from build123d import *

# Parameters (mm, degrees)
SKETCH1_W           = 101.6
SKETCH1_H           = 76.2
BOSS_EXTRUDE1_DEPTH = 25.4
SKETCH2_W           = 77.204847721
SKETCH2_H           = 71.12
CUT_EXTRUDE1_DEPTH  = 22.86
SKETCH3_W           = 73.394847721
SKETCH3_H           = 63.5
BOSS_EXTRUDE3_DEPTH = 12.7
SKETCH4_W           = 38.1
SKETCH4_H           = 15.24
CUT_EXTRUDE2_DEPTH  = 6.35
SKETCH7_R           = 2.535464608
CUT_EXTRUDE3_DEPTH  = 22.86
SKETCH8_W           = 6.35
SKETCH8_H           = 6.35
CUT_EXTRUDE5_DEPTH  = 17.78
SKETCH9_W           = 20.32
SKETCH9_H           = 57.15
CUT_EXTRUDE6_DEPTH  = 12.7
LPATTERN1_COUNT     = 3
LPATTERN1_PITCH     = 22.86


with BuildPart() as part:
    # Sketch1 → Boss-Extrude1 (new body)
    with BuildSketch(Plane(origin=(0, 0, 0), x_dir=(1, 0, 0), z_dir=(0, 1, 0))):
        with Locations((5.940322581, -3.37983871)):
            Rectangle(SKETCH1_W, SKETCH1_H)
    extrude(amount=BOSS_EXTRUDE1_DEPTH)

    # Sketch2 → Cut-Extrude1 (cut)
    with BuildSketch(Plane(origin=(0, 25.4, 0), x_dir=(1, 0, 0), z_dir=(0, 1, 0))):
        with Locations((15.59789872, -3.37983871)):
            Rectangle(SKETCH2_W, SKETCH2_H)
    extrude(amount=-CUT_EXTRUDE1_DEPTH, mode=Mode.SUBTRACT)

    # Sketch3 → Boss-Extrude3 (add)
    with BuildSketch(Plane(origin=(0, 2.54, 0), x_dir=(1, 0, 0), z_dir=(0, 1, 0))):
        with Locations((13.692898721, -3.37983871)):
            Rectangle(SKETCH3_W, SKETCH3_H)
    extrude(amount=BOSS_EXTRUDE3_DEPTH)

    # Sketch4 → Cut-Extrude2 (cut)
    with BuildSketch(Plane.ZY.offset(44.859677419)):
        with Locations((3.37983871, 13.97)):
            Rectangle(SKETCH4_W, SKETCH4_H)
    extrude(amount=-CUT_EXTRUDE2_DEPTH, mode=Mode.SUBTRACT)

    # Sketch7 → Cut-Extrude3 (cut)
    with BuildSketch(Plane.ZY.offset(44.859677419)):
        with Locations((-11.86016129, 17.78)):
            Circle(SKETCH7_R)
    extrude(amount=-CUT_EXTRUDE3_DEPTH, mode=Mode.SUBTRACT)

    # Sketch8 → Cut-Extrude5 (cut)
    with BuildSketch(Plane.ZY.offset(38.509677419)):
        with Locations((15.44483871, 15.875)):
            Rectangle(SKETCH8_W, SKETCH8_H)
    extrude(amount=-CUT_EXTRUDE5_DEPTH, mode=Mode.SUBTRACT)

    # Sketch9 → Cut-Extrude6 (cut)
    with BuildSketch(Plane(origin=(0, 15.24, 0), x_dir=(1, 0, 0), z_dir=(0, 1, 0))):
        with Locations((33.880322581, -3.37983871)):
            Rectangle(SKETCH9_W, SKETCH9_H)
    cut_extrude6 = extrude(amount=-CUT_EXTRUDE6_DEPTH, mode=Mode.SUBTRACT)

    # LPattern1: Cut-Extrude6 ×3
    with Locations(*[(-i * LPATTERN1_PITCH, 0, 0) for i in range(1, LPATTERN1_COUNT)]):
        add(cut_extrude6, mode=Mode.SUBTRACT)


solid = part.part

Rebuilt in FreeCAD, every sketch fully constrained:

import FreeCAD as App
import Part
import Sketcher
Q = App.Units.Quantity

doc = App.newDocument("Part")
body = doc.addObject("PartDesign::Body", "Body")

sketch1 = body.newObject("Sketcher::SketchObject", "Sketch")
sketch1.AttachmentSupport = (doc.getObject("XZ_Plane"), [""])
sketch1.MapMode = "FlatFace"
sketch1.addGeometry(Part.LineSegment(App.Vector(-45, -35, 0), App.Vector(-45, 41, 0)), False)
sketch1.addGeometry(Part.LineSegment(App.Vector(-45, 41, 0), App.Vector(57, 41, 0)), False)
sketch1.addGeometry(Part.LineSegment(App.Vector(57, 41, 0), App.Vector(57, -35, 0)), False)
sketch1.addGeometry(Part.LineSegment(App.Vector(57, -35, 0), App.Vector(-45, -35, 0)), False)
sketch1.addConstraint(Sketcher.Constraint("Coincident", 0, 2, 1, 1))
sketch1.addConstraint(Sketcher.Constraint("Coincident", 1, 2, 2, 1))
sketch1.addConstraint(Sketcher.Constraint("Coincident", 2, 2, 3, 1))
sketch1.addConstraint(Sketcher.Constraint("Coincident", 3, 2, 0, 1))
sketch1.addConstraint(Sketcher.Constraint("Vertical", 0))
sketch1.addConstraint(Sketcher.Constraint("Horizontal", 1))
sketch1.addConstraint(Sketcher.Constraint("Vertical", 2))
sketch1.addConstraint(Sketcher.Constraint("Horizontal", 3))
sketch1.addConstraint(Sketcher.Constraint("DistanceX", 1, 1, 1, 2, Q("4 in")))
sketch1.addConstraint(Sketcher.Constraint("DistanceY", 0, 1, 0, 2, Q("3 in")))
sketch1.addConstraint(Sketcher.Constraint("DistanceY", -1, 1, 0, 2, Q("41.479839 mm")))
sketch1.addConstraint(Sketcher.Constraint("DistanceX", 0, 2, -1, 1, Q("44.859677 mm")))
pad1 = body.newObject("PartDesign::Pad", "Pad")
pad1.Profile = sketch1
pad1.Length = Q("1 in")
pad1.Reversed = True

sketch2 = body.newObject("Sketcher::SketchObject", "Sketch001")
sketch2.AttachmentSupport = (doc.getObject("XZ_Plane"), [""])
sketch2.MapMode = "FlatFace"
sketch2.AttachmentOffset = App.Placement(App.Vector(0, 0, -1 * 25.4), App.Rotation())
sketch2.addGeometry(Part.LineSegment(App.Vector(-23, -32, 0), App.Vector(-23, 39, 0)), False)
sketch2.addGeometry(Part.LineSegment(App.Vector(-23, 39, 0), App.Vector(54, 39, 0)), False)
sketch2.addGeometry(Part.LineSegment(App.Vector(54, 39, 0), App.Vector(54, -32, 0)), False)
sketch2.addGeometry(Part.LineSegment(App.Vector(54, -32, 0), App.Vector(-23, -32, 0)), False)
sketch2.addConstraint(Sketcher.Constraint("Coincident", 0, 2, 1, 1))
sketch2.addConstraint(Sketcher.Constraint("Coincident", 1, 2, 2, 1))
sketch2.addConstraint(Sketcher.Constraint("Coincident", 2, 2, 3, 1))
sketch2.addConstraint(Sketcher.Constraint("Coincident", 3, 2, 0, 1))
sketch2.addConstraint(Sketcher.Constraint("Vertical", 0))
sketch2.addConstraint(Sketcher.Constraint("Horizontal", 1))
sketch2.addConstraint(Sketcher.Constraint("Vertical", 2))
sketch2.addConstraint(Sketcher.Constraint("Horizontal", 3))
sketch2.addConstraint(Sketcher.Constraint("DistanceY", 0, 1, 0, 2, Q("2.8 in")))
sketch2.addConstraint(Sketcher.Constraint("DistanceX", 1, 1, 1, 2, Q("77.204848 mm")))
sketch2.addConstraint(Sketcher.Constraint("DistanceY", -1, 1, 0, 2, Q("38.939839 mm")))
sketch2.addConstraint(Sketcher.Constraint("DistanceX", 0, 2, -1, 1, Q("23.004525 mm")))
pocket1 = body.newObject("PartDesign::Pocket", "Pocket")
pocket1.Profile = sketch2
pocket1.Length = Q("0.9 in")
pocket1.Reversed = True

sketch3 = body.newObject("Sketcher::SketchObject", "Sketch002")
sketch3.AttachmentSupport = (doc.getObject("XZ_Plane"), [""])
sketch3.MapMode = "FlatFace"
sketch3.AttachmentOffset = App.Placement(App.Vector(0, 0, -0.1 * 25.4), App.Rotation())
sketch3.addGeometry(Part.LineSegment(App.Vector(-23, -28, 0), App.Vector(-23, 35, 0)), False)
sketch3.addGeometry(Part.LineSegment(App.Vector(-23, 35, 0), App.Vector(50, 35, 0)), False)
sketch3.addGeometry(Part.LineSegment(App.Vector(50, 35, 0), App.Vector(50, -28, 0)), False)
sketch3.addGeometry(Part.LineSegment(App.Vector(50, -28, 0), App.Vector(-23, -28, 0)), False)
sketch3.addConstraint(Sketcher.Constraint("Coincident", 0, 2, 1, 1))
sketch3.addConstraint(Sketcher.Constraint("Coincident", 1, 2, 2, 1))
sketch3.addConstraint(Sketcher.Constraint("Coincident", 2, 2, 3, 1))
sketch3.addConstraint(Sketcher.Constraint("Coincident", 3, 2, 0, 1))
sketch3.addConstraint(Sketcher.Constraint("Vertical", 0))
sketch3.addConstraint(Sketcher.Constraint("Horizontal", 1))
sketch3.addConstraint(Sketcher.Constraint("Vertical", 2))
sketch3.addConstraint(Sketcher.Constraint("Horizontal", 3))
sketch3.addConstraint(Sketcher.Constraint("DistanceY", 0, 1, 0, 2, Q("2.5 in")))
sketch3.addConstraint(Sketcher.Constraint("DistanceX", 1, 1, 1, 2, Q("73.394848 mm")))
sketch3.addConstraint(Sketcher.Constraint("DistanceY", -1, 1, 0, 2, Q("35.129839 mm")))
sketch3.addConstraint(Sketcher.Constraint("DistanceX", 0, 2, -1, 1, Q("23.004525 mm")))
pad2 = body.newObject("PartDesign::Pad", "Pad001")
pad2.Profile = sketch3
pad2.Length = Q("0.5 in")
pad2.Reversed = True

sketch4 = body.newObject("Sketcher::SketchObject", "Sketch003")
sketch4.AttachmentSupport = (doc.getObject("YZ_Plane"), [""])
sketch4.MapMode = "FlatFace"
sketch4.AttachmentOffset = App.Placement(App.Vector(0, 0, -44.859677), App.Rotation())
sketch4.addGeometry(Part.LineSegment(App.Vector(22, -16, 0), App.Vector(6, -16, 0)), False)
sketch4.addGeometry(Part.LineSegment(App.Vector(6, -16, 0), App.Vector(6, 22, 0)), False)
sketch4.addGeometry(Part.LineSegment(App.Vector(6, 22, 0), App.Vector(22, 22, 0)), False)
sketch4.addGeometry(Part.LineSegment(App.Vector(22, 22, 0), App.Vector(22, -16, 0)), False)
sketch4.addConstraint(Sketcher.Constraint("Coincident", 0, 2, 1, 1))
sketch4.addConstraint(Sketcher.Constraint("Coincident", 1, 2, 2, 1))
sketch4.addConstraint(Sketcher.Constraint("Coincident", 2, 2, 3, 1))
sketch4.addConstraint(Sketcher.Constraint("Coincident", 3, 2, 0, 1))
sketch4.addConstraint(Sketcher.Constraint("Horizontal", 0))
sketch4.addConstraint(Sketcher.Constraint("Vertical", 1))
sketch4.addConstraint(Sketcher.Constraint("Horizontal", 2))
sketch4.addConstraint(Sketcher.Constraint("Vertical", 3))
sketch4.addConstraint(Sketcher.Constraint("DistanceX", 0, 2, 0, 1, Q("0.6 in")))
sketch4.addConstraint(Sketcher.Constraint("DistanceY", 1, 1, 1, 2, Q("1.5 in")))
sketch4.addConstraint(Sketcher.Constraint("DistanceX", -1, 1, 0, 2, Q("0.25 in")))
sketch4.addConstraint(Sketcher.Constraint("DistanceY", 0, 2, -1, 1, Q("15.670161 mm")))
pocket2 = body.newObject("PartDesign::Pocket", "Pocket001")
pocket2.Profile = sketch4
pocket2.Length = Q("0.25 in")
pocket2.Reversed = True

sketch5 = body.newObject("Sketcher::SketchObject", "Sketch004")
sketch5.AttachmentSupport = (doc.getObject("YZ_Plane"), [""])
sketch5.MapMode = "FlatFace"
sketch5.AttachmentOffset = App.Placement(App.Vector(0, 0, -44.859677), App.Rotation())
sketch5.addGeometry(Part.Circle(App.Vector(17.8, -11.9, 0), App.Vector(0, 0, 1), 2.5), False)
sketch5.addConstraint(Sketcher.Constraint("DistanceX", -1, 1, 0, 3, Q("0.7 in")))
sketch5.addConstraint(Sketcher.Constraint("Diameter", 0, Q("5.070929 mm")))
sketch5.addConstraint(Sketcher.Constraint("DistanceY", 0, 3, -1, 1, Q("11.860161 mm")))
pocket3 = body.newObject("PartDesign::Pocket", "Pocket002")
pocket3.Profile = sketch5
pocket3.Length = Q("0.9 in")
pocket3.Reversed = True

sketch6 = body.newObject("Sketcher::SketchObject", "Sketch005")
sketch6.AttachmentSupport = (doc.getObject("YZ_Plane"), [""])
sketch6.MapMode = "FlatFace"
sketch6.AttachmentOffset = App.Placement(App.Vector(0, 0, -38.509677), App.Rotation())
sketch6.addGeometry(Part.LineSegment(App.Vector(19, 12, 0), App.Vector(13, 12, 0)), False)
sketch6.addGeometry(Part.LineSegment(App.Vector(13, 12, 0), App.Vector(13, 19, 0)), False)
sketch6.addGeometry(Part.LineSegment(App.Vector(13, 19, 0), App.Vector(19, 19, 0)), False)
sketch6.addGeometry(Part.LineSegment(App.Vector(19, 19, 0), App.Vector(19, 12, 0)), False)
sketch6.addConstraint(Sketcher.Constraint("Coincident", 0, 2, 1, 1))
sketch6.addConstraint(Sketcher.Constraint("Coincident", 1, 2, 2, 1))
sketch6.addConstraint(Sketcher.Constraint("Coincident", 2, 2, 3, 1))
sketch6.addConstraint(Sketcher.Constraint("Coincident", 3, 2, 0, 1))
sketch6.addConstraint(Sketcher.Constraint("Horizontal", 0))
sketch6.addConstraint(Sketcher.Constraint("Vertical", 1))
sketch6.addConstraint(Sketcher.Constraint("Horizontal", 2))
sketch6.addConstraint(Sketcher.Constraint("Vertical", 3))
sketch6.addConstraint(Sketcher.Constraint("Equal", 2, 1))
sketch6.addConstraint(Sketcher.Constraint("DistanceX", 0, 2, 0, 1, Q("0.25 in")))
sketch6.addConstraint(Sketcher.Constraint("DistanceX", -1, 1, 0, 2, Q("0.5 in")))
sketch6.addConstraint(Sketcher.Constraint("DistanceY", -1, 1, 0, 2, Q("12.269839 mm")))
pocket4 = body.newObject("PartDesign::Pocket", "Pocket003")
pocket4.Profile = sketch6
pocket4.Length = Q("0.7 in")
pocket4.Reversed = True

sketch7 = body.newObject("Sketcher::SketchObject", "Sketch006")
sketch7.AttachmentSupport = (doc.getObject("XZ_Plane"), [""])
sketch7.MapMode = "FlatFace"
sketch7.AttachmentOffset = App.Placement(App.Vector(0, 0, -0.6 * 25.4), App.Rotation())
sketch7.addGeometry(Part.LineSegment(App.Vector(24, -25, 0), App.Vector(24, 32, 0)), False)
sketch7.addGeometry(Part.LineSegment(App.Vector(24, 32, 0), App.Vector(44, 32, 0)), False)
sketch7.addGeometry(Part.LineSegment(App.Vector(44, 32, 0), App.Vector(44, -25, 0)), False)
sketch7.addGeometry(Part.LineSegment(App.Vector(44, -25, 0), App.Vector(24, -25, 0)), False)
sketch7.addConstraint(Sketcher.Constraint("Coincident", 0, 2, 1, 1))
sketch7.addConstraint(Sketcher.Constraint("Coincident", 1, 2, 2, 1))
sketch7.addConstraint(Sketcher.Constraint("Coincident", 2, 2, 3, 1))
sketch7.addConstraint(Sketcher.Constraint("Coincident", 3, 2, 0, 1))
sketch7.addConstraint(Sketcher.Constraint("Vertical", 0))
sketch7.addConstraint(Sketcher.Constraint("Horizontal", 1))
sketch7.addConstraint(Sketcher.Constraint("Vertical", 2))
sketch7.addConstraint(Sketcher.Constraint("Horizontal", 3))
sketch7.addConstraint(Sketcher.Constraint("DistanceX", 1, 1, 1, 2, Q("0.8 in")))
sketch7.addConstraint(Sketcher.Constraint("DistanceY", 0, 1, 0, 2, Q("2.25 in")))
sketch7.addConstraint(Sketcher.Constraint("DistanceY", -1, 1, 0, 2, Q("31.954839 mm")))
sketch7.addConstraint(Sketcher.Constraint("DistanceX", -1, 1, 0, 2, Q("23.720323 mm")))
pocket5 = body.newObject("PartDesign::Pocket", "Pocket004")
pocket5.Profile = sketch7
pocket5.Length = Q("0.5 in")
pocket5.Reversed = True
doc.recompute()

linearpattern = body.newObject("PartDesign::LinearPattern", "LinearPattern")
linearpattern.Originals = [pocket5]
linearpattern.Direction = (doc.getObject("X_Axis"), [""])
linearpattern.Mode = "offset"
linearpattern.Offset = Q("0.9 in")
linearpattern.Occurrences = 3
linearpattern.Reversed = True
body.Tip = linearpattern

doc.recompute()
